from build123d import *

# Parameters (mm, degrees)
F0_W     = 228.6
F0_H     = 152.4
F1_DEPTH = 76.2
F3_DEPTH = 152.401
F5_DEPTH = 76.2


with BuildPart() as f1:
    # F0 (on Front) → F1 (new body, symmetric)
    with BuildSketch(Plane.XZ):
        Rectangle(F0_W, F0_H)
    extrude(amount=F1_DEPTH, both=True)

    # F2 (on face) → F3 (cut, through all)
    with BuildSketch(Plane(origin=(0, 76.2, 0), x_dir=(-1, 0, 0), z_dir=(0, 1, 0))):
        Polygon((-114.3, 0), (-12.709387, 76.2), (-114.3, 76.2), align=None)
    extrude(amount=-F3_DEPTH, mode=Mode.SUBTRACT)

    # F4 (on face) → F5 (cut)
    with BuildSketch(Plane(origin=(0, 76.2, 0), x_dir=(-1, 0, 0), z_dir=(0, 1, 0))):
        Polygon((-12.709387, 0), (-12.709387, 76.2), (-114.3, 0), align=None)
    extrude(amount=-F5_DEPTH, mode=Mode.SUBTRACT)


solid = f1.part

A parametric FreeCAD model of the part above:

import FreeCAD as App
import Part
import Sketcher

V = App.Vector
Q = App.Units.Quantity

doc = App.newDocument("Part")
body = doc.addObject("PartDesign::Body", "Body")

# Sketch on XZ plane
sketch1 = body.newObject("Sketcher::SketchObject", "Sketch")
sketch1.AttachmentSupport = (doc.getObject("XZ_Plane"), [""])
sketch1.MapMode = "FlatFace"
sketch1.addGeometry([
    Part.LineSegment(V(-114.3, 76.2, 0), V(-114.3, -76.2, 0)),
    Part.LineSegment(V(-114.3, -76.2, 0), V(114.3, -76.2, 0)),
    Part.LineSegment(V(114.3, -76.2, 0), V(114.3, 76.2, 0)),
    Part.LineSegment(V(114.3, 76.2, 0), V(-114.3, 76.2, 0)),
], False)
sketch1.addConstraint([
    Sketcher.Constraint("Coincident", 0, 2, 1, 1),
    Sketcher.Constraint("Coincident", 1, 2, 2, 1),
    Sketcher.Constraint("Coincident", 2, 2, 3, 1),
    Sketcher.Constraint("Coincident", 3, 2, 0, 1),
    Sketcher.Constraint("Vertical", 0),
    Sketcher.Constraint("Horizontal", 1),
    Sketcher.Constraint("Vertical", 2),
    Sketcher.Constraint("Horizontal", 3),
    Sketcher.Constraint("Symmetric", 0, 2, 2, 2, -1, 1),
    Sketcher.Constraint("DistanceX", 1, 1, 1, 2, Q("9 in")),
    Sketcher.Constraint("DistanceY", 0, 2, 0, 1, Q("6 in")),
])
pad1 = body.newObject("PartDesign::Pad", "Pad")
pad1.Profile = sketch1
pad1.Length = Q("6 in")
pad1.Midplane = True

# Sketch on XZ plane
sketch2 = body.newObject("Sketcher::SketchObject", "Sketch001")
sketch2.AttachmentSupport = (doc.getObject("XZ_Plane"), [""])
sketch2.MapMode = "FlatFace"
sketch2.AttachmentOffset = App.Placement(V(0, 0, -3 * 25.4), App.Rotation())
sketch2.addGeometry([
    Part.LineSegment(V(114.3, 0, 0), V(12.709387, 76.2, 0)),
    Part.LineSegment(V(12.709387, 76.2, 0), V(114.3, 76.2, 0)),
    Part.LineSegment(V(114.3, 76.2, 0), V(114.3, 0, 0)),
], False)
sketch2.addConstraint([
    Sketcher.Constraint("Coincident", 0, 2, 1, 1),
    Sketcher.Constraint("Coincident", 1, 2, 2, 1),
    Sketcher.Constraint("Coincident", 2, 2, 0, 1),
    Sketcher.Constraint("Horizontal", 1),
    Sketcher.Constraint("Vertical", 2),
    Sketcher.Constraint("PointOnObject", 2, 2, -1),
    Sketcher.Constraint("DistanceY", 2, 2, 2, 1, Q("3 in")),
    Sketcher.Constraint("DistanceX", -1, 1, 1, 2, Q("4.5 in")),
    Sketcher.Constraint("Distance", 0, 126.992491),
])
pocket1 = body.newObject("PartDesign::Pocket", "Pocket")
pocket1.Profile = sketch2
pocket1.Type = "ThroughAll"
pocket1.Reversed = True

# Sketch on XZ plane
sketch3 = body.newObject("Sketcher::SketchObject", "Sketch002")
sketch3.AttachmentSupport = (doc.getObject("XZ_Plane"), [""])
sketch3.MapMode = "FlatFace"
sketch3.AttachmentOffset = App.Placement(V(0, 0, -3 * 25.4), App.Rotation())
sketch3.addGeometry([
    Part.LineSegment(V(12.709387, 0, 0), V(12.709387, 76.2, 0)),
    Part.LineSegment(V(12.709387, 76.2, 0), V(114.3, 0, 0)),
    Part.LineSegment(V(114.3, 0, 0), V(12.709387, 0, 0)),
], False)
sketch3.addConstraint([
    Sketcher.Constraint("Coincident", 0, 2, 1, 1),
    Sketcher.Constraint("Coincident", 1, 2, 2, 1),
    Sketcher.Constraint("Coincident", 2, 2, 0, 1),
    Sketcher.Constraint("Vertical", 0),
    Sketcher.Constraint("Horizontal", 2),
    Sketcher.Constraint("PointOnObject", 1, 2, -1),
    Sketcher.Constraint("DistanceY", 0, 1, 0, 2, Q("3 in")),
    Sketcher.Constraint("DistanceX", -1, 1, 1, 2, Q("4.5 in")),
    Sketcher.Constraint("Distance", 1, 126.992491),
])
pocket2 = body.newObject("PartDesign::Pocket", "Pocket001")
pocket2.Profile = sketch3
pocket2.Length = Q("3 in")
pocket2.Reversed = True

doc.recompute()
